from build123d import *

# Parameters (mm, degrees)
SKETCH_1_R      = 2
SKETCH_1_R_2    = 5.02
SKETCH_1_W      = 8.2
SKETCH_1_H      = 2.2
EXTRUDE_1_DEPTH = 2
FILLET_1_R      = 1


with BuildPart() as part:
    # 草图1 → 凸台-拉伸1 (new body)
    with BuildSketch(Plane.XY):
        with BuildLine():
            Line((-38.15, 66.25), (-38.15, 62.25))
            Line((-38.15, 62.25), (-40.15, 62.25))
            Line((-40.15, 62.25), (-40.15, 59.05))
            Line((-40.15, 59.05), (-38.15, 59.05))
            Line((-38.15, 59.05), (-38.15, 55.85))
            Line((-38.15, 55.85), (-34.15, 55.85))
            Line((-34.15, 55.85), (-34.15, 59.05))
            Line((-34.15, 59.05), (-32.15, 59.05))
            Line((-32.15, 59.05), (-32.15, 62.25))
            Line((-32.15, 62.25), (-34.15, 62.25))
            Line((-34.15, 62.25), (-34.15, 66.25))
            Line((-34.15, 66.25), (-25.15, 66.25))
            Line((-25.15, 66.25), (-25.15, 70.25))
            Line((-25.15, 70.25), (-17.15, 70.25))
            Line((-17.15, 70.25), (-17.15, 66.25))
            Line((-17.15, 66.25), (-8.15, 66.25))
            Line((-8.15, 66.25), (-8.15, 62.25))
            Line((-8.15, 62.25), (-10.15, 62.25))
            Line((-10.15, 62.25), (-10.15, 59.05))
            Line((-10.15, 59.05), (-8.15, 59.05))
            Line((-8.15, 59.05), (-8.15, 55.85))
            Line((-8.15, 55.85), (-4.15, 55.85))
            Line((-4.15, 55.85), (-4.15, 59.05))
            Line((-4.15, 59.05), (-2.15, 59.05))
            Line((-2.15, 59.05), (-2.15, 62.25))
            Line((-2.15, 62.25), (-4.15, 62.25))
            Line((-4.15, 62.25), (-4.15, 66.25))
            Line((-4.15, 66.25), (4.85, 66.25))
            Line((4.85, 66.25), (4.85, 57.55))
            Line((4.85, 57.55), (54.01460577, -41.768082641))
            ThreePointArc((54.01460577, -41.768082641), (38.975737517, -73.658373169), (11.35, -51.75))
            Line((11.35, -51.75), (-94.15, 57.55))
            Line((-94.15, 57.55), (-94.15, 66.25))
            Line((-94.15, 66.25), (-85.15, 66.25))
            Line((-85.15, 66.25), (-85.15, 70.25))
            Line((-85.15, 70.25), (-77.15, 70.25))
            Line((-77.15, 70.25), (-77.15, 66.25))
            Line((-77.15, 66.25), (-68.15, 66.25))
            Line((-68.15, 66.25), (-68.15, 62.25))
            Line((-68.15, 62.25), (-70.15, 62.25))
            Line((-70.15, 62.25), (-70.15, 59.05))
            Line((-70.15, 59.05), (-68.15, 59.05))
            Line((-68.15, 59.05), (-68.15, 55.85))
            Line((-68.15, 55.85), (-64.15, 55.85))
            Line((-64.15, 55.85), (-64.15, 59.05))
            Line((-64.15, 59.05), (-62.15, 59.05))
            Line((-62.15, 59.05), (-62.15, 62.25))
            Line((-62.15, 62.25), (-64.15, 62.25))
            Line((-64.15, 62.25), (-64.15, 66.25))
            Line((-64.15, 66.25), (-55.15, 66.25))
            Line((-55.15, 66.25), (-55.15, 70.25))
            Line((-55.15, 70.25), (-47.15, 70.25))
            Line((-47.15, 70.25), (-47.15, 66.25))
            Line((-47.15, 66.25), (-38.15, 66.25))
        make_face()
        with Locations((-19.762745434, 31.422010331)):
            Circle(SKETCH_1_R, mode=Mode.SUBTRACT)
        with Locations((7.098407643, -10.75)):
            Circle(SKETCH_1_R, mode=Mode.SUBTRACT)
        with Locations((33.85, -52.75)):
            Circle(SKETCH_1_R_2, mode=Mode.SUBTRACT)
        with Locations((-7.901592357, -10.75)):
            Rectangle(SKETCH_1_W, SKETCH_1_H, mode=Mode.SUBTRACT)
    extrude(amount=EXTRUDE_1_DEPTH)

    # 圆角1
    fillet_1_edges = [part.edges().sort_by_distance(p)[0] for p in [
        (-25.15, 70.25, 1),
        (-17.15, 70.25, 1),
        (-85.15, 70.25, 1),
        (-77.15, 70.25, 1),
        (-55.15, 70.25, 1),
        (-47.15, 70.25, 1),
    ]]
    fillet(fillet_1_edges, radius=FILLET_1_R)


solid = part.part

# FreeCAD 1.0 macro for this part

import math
import FreeCAD as App
import Part
import Sketcher
from FreeCAD import Vector
Q = App.Units.Quantity


def edges_at(feature, points):
    """Names of the edges that pass closest to the given points."""
    edges = feature.Shape.Edges
    near = lambda p: min(range(len(edges)), key=lambda i: edges[i].distToShape(Part.Vertex(*p))[0])
    return sorted({f"Edge{near(p) + 1}" for p in points})

doc = App.newDocument("Part")
params = doc.addObject("Spreadsheet::Sheet", "Params")
for row, (alias, value) in enumerate([
    ("sketch1_diameter", "4 mm"),
    ("sketch1_radius", "22.5 mm"),
    ("sketch1_diameter2", "10.04 mm"),
    ("sketch1_width", "9 mm"),
    ("sketch1_width2", "8 mm"),
    ("pad1_length", "2 mm"),
    ("fillet_radius", "1 mm"),
], start=1):
    params.set(f"A{row}", alias)
    params.set(f"B{row}", "=" + value)
    params.setAlias(f"B{row}", alias)

body = doc.addObject("PartDesign::Body", "Body")

# Sketch on XY plane
sketch1 = body.newObject("Sketcher::SketchObject", "Sketch")
sketch1.AttachmentSupport = (doc.getObject("XY_Plane"), [""])
sketch1.MapMode = "FlatFace"
sketch1.addGeometry([
    Part.LineSegment(Vector(-38.1, 62.2, 0), Vector(-38.1, 66.2, 0)),  # 0
    Part.LineSegment(Vector(-38.1, 66.2, 0), Vector(-47.1, 66.2, 0)),  # 1
    Part.LineSegment(Vector(-47.1, 66.2, 0), Vector(-47.1, 70.2, 0)),  # 2
    Part.LineSegment(Vector(-47.1, 70.2, 0), Vector(-55.1, 70.2, 0)),  # 3
    Part.LineSegment(Vector(-55.1, 70.2, 0), Vector(-55.1, 66.2, 0)),  # 4
    Part.LineSegment(Vector(-55.1, 66.2, 0), Vector(-64.2, 66.2, 0)),  # 5
    Part.LineSegment(Vector(-64.2, 66.2, 0), Vector(-64.2, 62.2, 0)),  # 6
    Part.LineSegment(Vector(-64.2, 62.2, 0), Vector(-62.1, 62.2, 0)),  # 7
    Part.LineSegment(Vector(-62.1, 62.2, 0), Vector(-62.1, 59, 0)),  # 8
    Part.LineSegment(Vector(-62.1, 59, 0), Vector(-64.2, 59, 0)),  # 9
    Part.LineSegment(Vector(-64.2, 59, 0), Vector(-64.2, 55.9, 0)),  # 10
    Part.LineSegment(Vector(-64.2, 55.9, 0), Vector(-68.2, 55.9, 0)),  # 11
    Part.LineSegment(Vector(-68.2, 55.9, 0), Vector(-68.2, 59, 0)),  # 12
    Part.LineSegment(Vector(-68.2, 59, 0), Vector(-70.2, 59, 0)),  # 13
    Part.LineSegment(Vector(-70.2, 59, 0), Vector(-70.2, 62.2, 0)),  # 14
    Part.LineSegment(Vector(-70.2, 62.2, 0), Vector(-68.2, 62.2, 0)),  # 15
    Part.LineSegment(Vector(-68.2, 62.2, 0), Vector(-68.2, 66.2, 0)),  # 16
    Part.LineSegment(Vector(-68.2, 66.2, 0), Vector(-77.2, 66.2, 0)),  # 17
    Part.LineSegment(Vector(-77.2, 66.2, 0), Vector(-77.2, 70.2, 0)),  # 18
    Part.LineSegment(Vector(-77.2, 70.2, 0), Vector(-85.2, 70.2, 0)),  # 19
    Part.LineSegment(Vector(-85.2, 70.2, 0), Vector(-85.2, 66.2, 0)),  # 20
    Part.LineSegment(Vector(-85.2, 66.2, 0), Vector(-94.2, 66.2, 0)),  # 21
    Part.LineSegment(Vector(-94.2, 66.2, 0), Vector(-94.2, 57.5, 0)),  # 22
    Part.LineSegment(Vector(-94.2, 57.5, 0), Vector(11.3, -51.8, 0)),  # 23
    Part.ArcOfCircle(Part.Circle(Vector(33.9, -51.8, 0), Vector(0, 0, 1), 22.5), math.radians(180), math.radians(386)),  # 24
    Part.LineSegment(Vector(54, -41.8, 0), Vector(4.8, 57.5, 0)),  # 25
    Part.LineSegment(Vector(4.8, 57.5, 0), Vector(4.8, 66.2, 0)),  # 26
    Part.LineSegment(Vector(4.8, 66.2, 0), Vector(-4.2, 66.2, 0)),  # 27
    Part.LineSegment(Vector(-4.2, 66.2, 0), Vector(-4.2, 62.2, 0)),  # 28
    Part.LineSegment(Vector(-4.2, 62.2, 0), Vector(-2.1, 62.2, 0)),  # 29
    Part.LineSegment(Vector(-2.1, 62.2, 0), Vector(-2.1, 59, 0)),  # 30
    Part.LineSegment(Vector(-2.1, 59, 0), Vector(-4.2, 59, 0)),  # 31
    Part.LineSegment(Vector(-4.2, 59, 0), Vector(-4.2, 55.9, 0)),  # 32
    Part.LineSegment(Vector(-4.2, 55.9, 0), Vector(-8.2, 55.9, 0)),  # 33
    Part.LineSegment(Vector(-8.2, 55.9, 0), Vector(-8.2, 59, 0)),  # 34
    Part.LineSegment(Vector(-8.2, 59, 0), Vector(-10.2, 59, 0)),  # 35
    Part.LineSegment(Vector(-10.2, 59, 0), Vector(-10.2, 62.2, 0)),  # 36
    Part.LineSegment(Vector(-10.2, 62.2, 0), Vector(-8.2, 62.2, 0)),  # 37
    Part.LineSegment(Vector(-8.2, 62.2, 0), Vector(-8.2, 66.2, 0)),  # 38
    Part.LineSegment(Vector(-8.2, 66.2, 0), Vector(-17.1, 66.2, 0)),  # 39
    Part.LineSegment(Vector(-17.1, 66.2, 0), Vector(-17.1, 70.2, 0)),  # 40
    Part.LineSegment(Vector(-17.1, 70.2, 0), Vector(-25.1, 70.2, 0)),  # 41
    Part.LineSegment(Vector(-25.1, 70.2, 0), Vector(-25.1, 66.2, 0)),  # 42
    Part.LineSegment(Vector(-25.1, 66.2, 0), Vector(-34.1, 66.2, 0)),  # 43
    Part.LineSegment(Vector(-34.1, 66.2, 0), Vector(-34.1, 62.2, 0)),  # 44
    Part.LineSegment(Vector(-34.1, 62.2, 0), Vector(-32.1, 62.2, 0)),  # 45
    Part.LineSegment(Vector(-32.1, 62.2, 0), Vector(-32.1, 59, 0)),  # 46
    Part.LineSegment(Vector(-32.1, 59, 0), Vector(-34.1, 59, 0)),  # 47
    Part.LineSegment(Vector(-34.1, 59, 0), Vector(-34.1, 55.9, 0)),  # 48
    Part.LineSegment(Vector(-34.1, 55.9, 0), Vector(-38.1, 55.9, 0)),  # 49
    Part.LineSegment(Vector(-38.1, 55.9, 0), Vector(-38.1, 59, 0)),  # 50
    Part.LineSegment(Vector(-38.1, 59, 0), Vector(-40.1, 59, 0)),  # 51
    Part.LineSegment(Vector(-40.1, 59, 0), Vector(-40.1, 62.2, 0)),  # 52
    Part.LineSegment(Vector(-40.1, 62.2, 0), Vector(-38.1, 62.2, 0)),  # 53
    Part.Circle(Vector(33.9, -52.8, 0), Vector(0, 0, 1), 5),  # 54
    Part.Circle(Vector(7.1, -10.8, 0), Vector(0, 0, 1), 2),  # 55
    Part.LineSegment(Vector(-12, -11.8, 0), Vector(-12, -9.7, 0)),  # 56
    Part.LineSegment(Vector(-12, -9.7, 0), Vector(-3.8, -9.7, 0)),  # 57
    Part.LineSegment(Vector(-3.8, -9.7, 0), Vector(-3.8, -11.8, 0)),  # 58
    Part.LineSegment(Vector(-3.8, -11.8, 0), Vector(-12, -11.8, 0)),  # 59
    Part.Circle(Vector(-19.8, 31.4, 0), Vector(0, 0, 1), 2),  # 60
], False)
sketch1.addConstraint([
    Sketcher.Constraint("Coincident", 0, 2, 1, 1),
    Sketcher.Constraint("Coincident", 1, 2, 2, 1),
    Sketcher.Constraint("Coincident", 2, 2, 3, 1),
    Sketcher.Constraint("Coincident", 3, 2, 4, 1),
    Sketcher.Constraint("Coincident", 4, 2, 5, 1),
    Sketcher.Constraint("Coincident", 5, 2, 6, 1),
    Sketcher.Constraint("Coincident", 6, 2, 7, 1),
    Sketcher.Constraint("Coincident", 7, 2, 8, 1),
    Sketcher.Constraint("Coincident", 8, 2, 9, 1),
    Sketcher.Constraint("Coincident", 9, 2, 10, 1),
    Sketcher.Constraint("Coincident", 10, 2, 11, 1),
    Sketcher.Constraint("Coincident", 11, 2, 12, 1),
    Sketcher.Constraint("Coincident", 12, 2, 13, 1),
    Sketcher.Constraint("Coincident", 13, 2, 14, 1),
    Sketcher.Constraint("Coincident", 14, 2, 15, 1),
    Sketcher.Constraint("Coincident", 15, 2, 16, 1),
    Sketcher.Constraint("Coincident", 16, 2, 17, 1),
    Sketcher.Constraint("Coincident", 17, 2, 18, 1),
    Sketcher.Constraint("Coincident", 18, 2, 19, 1),
    Sketcher.Constraint("Coincident", 19, 2, 20, 1),
    Sketcher.Constraint("Coincident", 20, 2, 21, 1),
    Sketcher.Constraint("Coincident", 21, 2, 22, 1),
    Sketcher.Constraint("Coincident", 22, 2, 23, 1),
    Sketcher.Constraint("Coincident", 23, 2, 24, 1),
    Sketcher.Constraint("Tangent", 24, 2, 25, 1),
    Sketcher.Constraint("Coincident", 25, 2, 26, 1),
    Sketcher.Constraint("Coincident", 26, 2, 27, 1),
    Sketcher.Constraint("Coincident", 27, 2, 28, 1),
    Sketcher.Constraint("Coincident", 28, 2, 29, 1),
    Sketcher.Constraint("Coincident", 29, 2, 30, 1),
    Sketcher.Constraint("Coincident", 30, 2, 31, 1),
    Sketcher.Constraint("Coincident", 31, 2, 32, 1),
    Sketcher.Constraint("Coincident", 32, 2, 33, 1),
    Sketcher.Constraint("Coincident", 33, 2, 34, 1),
    Sketcher.Constraint("Coincident", 34, 2, 35, 1),
    Sketcher.Constraint("Coincident", 35, 2, 36, 1),
    Sketcher.Constraint("Coincident", 36, 2, 37, 1),
    Sketcher.Constraint("Coincident", 37, 2, 38, 1),
    Sketcher.Constraint("Coincident", 38, 2, 39, 1),
    Sketcher.Constraint("Coincident", 39, 2, 40, 1),
    Sketcher.Constraint("Coincident", 40, 2, 41, 1),
    Sketcher.Constraint("Coincident", 41, 2, 42, 1),
    Sketcher.Constraint("Coincident", 42, 2, 43, 1),
    Sketcher.Constraint("Coincident", 43, 2, 44, 1),
    Sketcher.Constraint("Coincident", 44, 2, 45, 1),
    Sketcher.Constraint("Coincident", 45, 2, 46, 1),
    Sketcher.Constraint("Coincident", 46, 2, 47, 1),
    Sketcher.Constraint("Coincident", 47, 2, 48, 1),
    Sketcher.Constraint("Coincident", 48, 2, 49, 1),
    Sketcher.Constraint("Coincident", 49, 2, 50, 1),
    Sketcher.Constraint("Coincident", 50, 2, 51, 1),
    Sketcher.Constraint("Coincident", 51, 2, 52, 1),
    Sketcher.Constraint("Coincident", 52, 2, 53, 1),
    Sketcher.Constraint("Coincident", 53, 2, 0, 1),
    Sketcher.Constraint("Coincident", 56, 2, 57, 1),
    Sketcher.Constraint("Coincident", 57, 2, 58, 1),
    Sketcher.Constraint("Coincident", 58, 2, 59, 1),
    Sketcher.Constraint("Coincident", 59, 2, 56, 1),
    Sketcher.Constraint("Vertical", 0),
    Sketcher.Constraint("Horizontal", 1),
    Sketcher.Constraint("Vertical", 2),
    Sketcher.Constraint("Horizontal", 3),
    Sketcher.Constraint("Vertical", 4),
    Sketcher.Constraint("Horizontal", 5),
    Sketcher.Constraint("Vertical", 6),
    Sketcher.Constraint("Horizontal", 7),
    Sketcher.Constraint("Vertical", 8),
    Sketcher.Constraint("Horizontal", 9),
    Sketcher.Constraint("Vertical", 10),
    Sketcher.Constraint("Horizontal", 11),
    Sketcher.Constraint("Vertical", 12),
    Sketcher.Constraint("Horizontal", 13),
    Sketcher.Constraint("Vertical", 14),
    Sketcher.Constraint("Horizontal", 15),
    Sketcher.Constraint("Vertical", 16),
    Sketcher.Constraint("Horizontal", 17),
    Sketcher.Constraint("Vertical", 18),
    Sketcher.Constraint("Horizontal", 19),
    Sketcher.Constraint("Vertical", 20),
    Sketcher.Constraint("Horizontal", 21),
    Sketcher.Constraint("Vertical", 22),
    Sketcher.Constraint("Vertical", 26),
    Sketcher.Constraint("Horizontal", 27),
    Sketcher.Constraint("Vertical", 28),
    Sketcher.Constraint("Horizontal", 29),
    Sketcher.Constraint("Vertical", 30),
    Sketcher.Constraint("Horizontal", 31),
    Sketcher.Constraint("Vertical", 32),
    Sketcher.Constraint("Horizontal", 33),
    Sketcher.Constraint("Vertical", 34),
    Sketcher.Constraint("Horizontal", 35),
    Sketcher.Constraint("Vertical", 36),
    Sketcher.Constraint("Horizontal", 37),
    Sketcher.Constraint("Vertical", 38),
    Sketcher.Constraint("Horizontal", 39),
    Sketcher.Constraint("Vertical", 40),
    Sketcher.Constraint("Horizontal", 41),
    Sketcher.Constraint("Vertical", 42),
    Sketcher.Constraint("Horizontal", 43),
    Sketcher.Constraint("Vertical", 44),
    Sketcher.Constraint("Horizontal", 45),
    Sketcher.Constraint("Vertical", 46),
    Sketcher.Constraint("Horizontal", 47),
    Sketcher.Constraint("Vertical", 48),
    Sketcher.Constraint("Horizontal", 49),
    Sketcher.Constraint("Vertical", 50),
    Sketcher.Constraint("Horizontal", 51),
    Sketcher.Constraint("Vertical", 52),
    Sketcher.Constraint("Horizontal", 53),
    Sketcher.Constraint("Vertical", 56),
    Sketcher.Constraint("Horizontal", 57),
    Sketcher.Constraint("Vertical", 58),
    Sketcher.Constraint("Horizontal", 59),
    Sketcher.Constraint("Equal", 55, 60),
    Sketcher.Constraint("Horizontal", 1, 2, 4, 2),
    Sketcher.Constraint("Horizontal", 9, 2, 12, 2),
    Sketcher.Constraint("Horizontal", 7, 2, 14, 2),
    Sketcher.Constraint("Horizontal", 5, 2, 16, 2),
    Sketcher.Constraint("Horizontal", 3, 2, 18, 2),
    Sketcher.Constraint("Horizontal", 17, 2, 20, 2),
    Sketcher.Constraint("Horizontal", 24, 3, 23, 2),
    Sketcher.Constraint("Horizontal", 22, 2, 25, 2),
    Sketcher.Constraint("Horizontal", 21, 2, 26, 2),
    Sketcher.Constraint("Horizontal", 15, 2, 28, 2),
    Sketcher.Constraint("Horizontal", 13, 2, 30, 2),
    Sketcher.Constraint("Horizontal", 11, 2, 32, 2),
    Sketcher.Constraint("Horizontal", 31, 2, 34, 2),
    Sketcher.Constraint("Horizontal", 29, 2, 36, 2),
    Sketcher.Constraint("Horizontal", 27, 2, 38, 2),
    Sketcher.Constraint("Horizontal", 19, 2, 40, 2),
    Sketcher.Constraint("Horizontal", 39, 2, 42, 2),
    Sketcher.Constraint("Horizontal", 37, 2, 44, 2),
    Sketcher.Constraint("Horizontal", 35, 2, 46, 2),
    Sketcher.Constraint("Horizontal", 33, 2, 48, 2),
    Sketcher.Constraint("Horizontal", 47, 2, 50, 2),
    Sketcher.Constraint("Horizontal", 45, 2, 52, 2),
    Sketcher.Constraint("Vertical", 24, 3, 54, 3),
    Sketcher.Constraint("Vertical", 6, 2, 9, 2),
    Sketcher.Constraint("Vertical", 12, 2, 15, 2),
    Sketcher.Constraint("Vertical", 28, 2, 31, 2),
    Sketcher.Constraint("Vertical", 34, 2, 37, 2),
    Sketcher.Constraint("Vertical", 44, 2, 47, 2),
    Sketcher.Constraint("Vertical", 0, 2, 49, 2),
    Sketcher.Constraint("Equal", 1, 5),
    Sketcher.Constraint("Equal", 9, 13),
    Sketcher.Constraint("Equal", 5, 17),
    Sketcher.Constraint("Equal", 3, 19),
    Sketcher.Constraint("Equal", 17, 21),
    Sketcher.Constraint("Equal", 21, 27),
    Sketcher.Constraint("Equal", 15, 29),
    Sketcher.Constraint("Equal", 11, 33),
    Sketcher.Constraint("Equal", 31, 35),
    Sketcher.Constraint("Equal", 27, 39),
    Sketcher.Constraint("Equal", 19, 41),
    Sketcher.Constraint("Equal", 39, 43),
    Sketcher.Constraint("Equal", 37, 45),
    Sketcher.Constraint("Equal", 33, 49),
    Sketcher.Constraint("Equal", 47, 51),
    Sketcher.Constraint("Equal", 49, 0),
    Sketcher.Constraint("Equal", 0, 2),
    Sketcher.Constraint("Equal", 8, 10),
    Sketcher.Constraint("Diameter", 55, Q("4 mm")),
    Sketcher.Constraint("Radius", 24, Q("22.5 mm")),
    Sketcher.Constraint("Diameter", 54, Q("10.04 mm")),
    Sketcher.Constraint("DistanceX", 1, 2, 1, 1, Q("9 mm")),
    Sketcher.Constraint("DistanceX", 3, 2, 3, 1, Q("8 mm")),
    Sketcher.Constraint("DistanceX", 7, 1, 7, 2, Q("2 mm")),
    Sketcher.Constraint("DistanceX", 11, 2, 11, 1, Q("4 mm")),
    Sketcher.Constraint("DistanceX", 57, 1, 57, 2, Q("8.2 mm")),
    Sketcher.Constraint("DistanceY", 8, 2, 8, 1, Q("3.2 mm")),
    Sketcher.Constraint("DistanceY", 22, 2, 22, 1, Q("8.7 mm")),
    Sketcher.Constraint("DistanceY", 56, 1, 56, 2, Q("2.2 mm")),
    Sketcher.Constraint("DistanceX", -1, 1, 24, 3, Q("33.85 mm")),
    Sketcher.Constraint("DistanceY", 24, 3, -1, 1, Q("51.75 mm")),
    Sketcher.Constraint("DistanceY", 54, 3, -1, 1, Q("52.75 mm")),
    Sketcher.Constraint("DistanceY", 55, 3, -1, 1, Q("10.75 mm")),
    Sketcher.Constraint("DistanceX", 0, 2, -1, 1, Q("38.15 mm")),
    Sketcher.Constraint("DistanceY", -1, 1, 0, 2, Q("66.25 mm")),
    Sketcher.Constraint("DistanceY", 56, 2, -1, 1, Q("9.65 mm")),
    Sketcher.Constraint("DistanceY", -1, 1, 60, 3, Q("31.42201 mm")),
    Sketcher.Constraint("DistanceX", -1, 1, 55, 3, Q("7.098408 mm")),
    Sketcher.Constraint("DistanceX", 60, 3, -1, 1, Q("19.762745 mm")),
    Sketcher.Constraint("DistanceX", 56, 2, -1, 1, Q("12.001592 mm")),
])
sketch1.setExpression("Constraints[161]", "Params.sketch1_diameter")
sketch1.setExpression("Constraints[162]", "Params.sketch1_radius")
sketch1.setExpression("Constraints[163]", "Params.sketch1_diameter2")
sketch1.setExpression("Constraints[164]", "Params.sketch1_width")
sketch1.setExpression("Constraints[165]", "Params.sketch1_width2")
pad1 = body.newObject("PartDesign::Pad", "Pad")
pad1.Profile = sketch1
pad1.setExpression("Length", "Params.pad1_length")
doc.recompute()

fillet = body.newObject("PartDesign::Fillet", "Fillet")
fillet.Base = (pad1, edges_at(pad1, [
    (-25.15, 70.25, 1),
    (-17.15, 70.25, 1),
    (-85.15, 70.25, 1),
    (-77.15, 70.25, 1),
    (-55.15, 70.25, 1),
    (-47.15, 70.25, 1),
]))
fillet.setExpression("Radius", "Params.fillet_radius")

doc.recompute()
